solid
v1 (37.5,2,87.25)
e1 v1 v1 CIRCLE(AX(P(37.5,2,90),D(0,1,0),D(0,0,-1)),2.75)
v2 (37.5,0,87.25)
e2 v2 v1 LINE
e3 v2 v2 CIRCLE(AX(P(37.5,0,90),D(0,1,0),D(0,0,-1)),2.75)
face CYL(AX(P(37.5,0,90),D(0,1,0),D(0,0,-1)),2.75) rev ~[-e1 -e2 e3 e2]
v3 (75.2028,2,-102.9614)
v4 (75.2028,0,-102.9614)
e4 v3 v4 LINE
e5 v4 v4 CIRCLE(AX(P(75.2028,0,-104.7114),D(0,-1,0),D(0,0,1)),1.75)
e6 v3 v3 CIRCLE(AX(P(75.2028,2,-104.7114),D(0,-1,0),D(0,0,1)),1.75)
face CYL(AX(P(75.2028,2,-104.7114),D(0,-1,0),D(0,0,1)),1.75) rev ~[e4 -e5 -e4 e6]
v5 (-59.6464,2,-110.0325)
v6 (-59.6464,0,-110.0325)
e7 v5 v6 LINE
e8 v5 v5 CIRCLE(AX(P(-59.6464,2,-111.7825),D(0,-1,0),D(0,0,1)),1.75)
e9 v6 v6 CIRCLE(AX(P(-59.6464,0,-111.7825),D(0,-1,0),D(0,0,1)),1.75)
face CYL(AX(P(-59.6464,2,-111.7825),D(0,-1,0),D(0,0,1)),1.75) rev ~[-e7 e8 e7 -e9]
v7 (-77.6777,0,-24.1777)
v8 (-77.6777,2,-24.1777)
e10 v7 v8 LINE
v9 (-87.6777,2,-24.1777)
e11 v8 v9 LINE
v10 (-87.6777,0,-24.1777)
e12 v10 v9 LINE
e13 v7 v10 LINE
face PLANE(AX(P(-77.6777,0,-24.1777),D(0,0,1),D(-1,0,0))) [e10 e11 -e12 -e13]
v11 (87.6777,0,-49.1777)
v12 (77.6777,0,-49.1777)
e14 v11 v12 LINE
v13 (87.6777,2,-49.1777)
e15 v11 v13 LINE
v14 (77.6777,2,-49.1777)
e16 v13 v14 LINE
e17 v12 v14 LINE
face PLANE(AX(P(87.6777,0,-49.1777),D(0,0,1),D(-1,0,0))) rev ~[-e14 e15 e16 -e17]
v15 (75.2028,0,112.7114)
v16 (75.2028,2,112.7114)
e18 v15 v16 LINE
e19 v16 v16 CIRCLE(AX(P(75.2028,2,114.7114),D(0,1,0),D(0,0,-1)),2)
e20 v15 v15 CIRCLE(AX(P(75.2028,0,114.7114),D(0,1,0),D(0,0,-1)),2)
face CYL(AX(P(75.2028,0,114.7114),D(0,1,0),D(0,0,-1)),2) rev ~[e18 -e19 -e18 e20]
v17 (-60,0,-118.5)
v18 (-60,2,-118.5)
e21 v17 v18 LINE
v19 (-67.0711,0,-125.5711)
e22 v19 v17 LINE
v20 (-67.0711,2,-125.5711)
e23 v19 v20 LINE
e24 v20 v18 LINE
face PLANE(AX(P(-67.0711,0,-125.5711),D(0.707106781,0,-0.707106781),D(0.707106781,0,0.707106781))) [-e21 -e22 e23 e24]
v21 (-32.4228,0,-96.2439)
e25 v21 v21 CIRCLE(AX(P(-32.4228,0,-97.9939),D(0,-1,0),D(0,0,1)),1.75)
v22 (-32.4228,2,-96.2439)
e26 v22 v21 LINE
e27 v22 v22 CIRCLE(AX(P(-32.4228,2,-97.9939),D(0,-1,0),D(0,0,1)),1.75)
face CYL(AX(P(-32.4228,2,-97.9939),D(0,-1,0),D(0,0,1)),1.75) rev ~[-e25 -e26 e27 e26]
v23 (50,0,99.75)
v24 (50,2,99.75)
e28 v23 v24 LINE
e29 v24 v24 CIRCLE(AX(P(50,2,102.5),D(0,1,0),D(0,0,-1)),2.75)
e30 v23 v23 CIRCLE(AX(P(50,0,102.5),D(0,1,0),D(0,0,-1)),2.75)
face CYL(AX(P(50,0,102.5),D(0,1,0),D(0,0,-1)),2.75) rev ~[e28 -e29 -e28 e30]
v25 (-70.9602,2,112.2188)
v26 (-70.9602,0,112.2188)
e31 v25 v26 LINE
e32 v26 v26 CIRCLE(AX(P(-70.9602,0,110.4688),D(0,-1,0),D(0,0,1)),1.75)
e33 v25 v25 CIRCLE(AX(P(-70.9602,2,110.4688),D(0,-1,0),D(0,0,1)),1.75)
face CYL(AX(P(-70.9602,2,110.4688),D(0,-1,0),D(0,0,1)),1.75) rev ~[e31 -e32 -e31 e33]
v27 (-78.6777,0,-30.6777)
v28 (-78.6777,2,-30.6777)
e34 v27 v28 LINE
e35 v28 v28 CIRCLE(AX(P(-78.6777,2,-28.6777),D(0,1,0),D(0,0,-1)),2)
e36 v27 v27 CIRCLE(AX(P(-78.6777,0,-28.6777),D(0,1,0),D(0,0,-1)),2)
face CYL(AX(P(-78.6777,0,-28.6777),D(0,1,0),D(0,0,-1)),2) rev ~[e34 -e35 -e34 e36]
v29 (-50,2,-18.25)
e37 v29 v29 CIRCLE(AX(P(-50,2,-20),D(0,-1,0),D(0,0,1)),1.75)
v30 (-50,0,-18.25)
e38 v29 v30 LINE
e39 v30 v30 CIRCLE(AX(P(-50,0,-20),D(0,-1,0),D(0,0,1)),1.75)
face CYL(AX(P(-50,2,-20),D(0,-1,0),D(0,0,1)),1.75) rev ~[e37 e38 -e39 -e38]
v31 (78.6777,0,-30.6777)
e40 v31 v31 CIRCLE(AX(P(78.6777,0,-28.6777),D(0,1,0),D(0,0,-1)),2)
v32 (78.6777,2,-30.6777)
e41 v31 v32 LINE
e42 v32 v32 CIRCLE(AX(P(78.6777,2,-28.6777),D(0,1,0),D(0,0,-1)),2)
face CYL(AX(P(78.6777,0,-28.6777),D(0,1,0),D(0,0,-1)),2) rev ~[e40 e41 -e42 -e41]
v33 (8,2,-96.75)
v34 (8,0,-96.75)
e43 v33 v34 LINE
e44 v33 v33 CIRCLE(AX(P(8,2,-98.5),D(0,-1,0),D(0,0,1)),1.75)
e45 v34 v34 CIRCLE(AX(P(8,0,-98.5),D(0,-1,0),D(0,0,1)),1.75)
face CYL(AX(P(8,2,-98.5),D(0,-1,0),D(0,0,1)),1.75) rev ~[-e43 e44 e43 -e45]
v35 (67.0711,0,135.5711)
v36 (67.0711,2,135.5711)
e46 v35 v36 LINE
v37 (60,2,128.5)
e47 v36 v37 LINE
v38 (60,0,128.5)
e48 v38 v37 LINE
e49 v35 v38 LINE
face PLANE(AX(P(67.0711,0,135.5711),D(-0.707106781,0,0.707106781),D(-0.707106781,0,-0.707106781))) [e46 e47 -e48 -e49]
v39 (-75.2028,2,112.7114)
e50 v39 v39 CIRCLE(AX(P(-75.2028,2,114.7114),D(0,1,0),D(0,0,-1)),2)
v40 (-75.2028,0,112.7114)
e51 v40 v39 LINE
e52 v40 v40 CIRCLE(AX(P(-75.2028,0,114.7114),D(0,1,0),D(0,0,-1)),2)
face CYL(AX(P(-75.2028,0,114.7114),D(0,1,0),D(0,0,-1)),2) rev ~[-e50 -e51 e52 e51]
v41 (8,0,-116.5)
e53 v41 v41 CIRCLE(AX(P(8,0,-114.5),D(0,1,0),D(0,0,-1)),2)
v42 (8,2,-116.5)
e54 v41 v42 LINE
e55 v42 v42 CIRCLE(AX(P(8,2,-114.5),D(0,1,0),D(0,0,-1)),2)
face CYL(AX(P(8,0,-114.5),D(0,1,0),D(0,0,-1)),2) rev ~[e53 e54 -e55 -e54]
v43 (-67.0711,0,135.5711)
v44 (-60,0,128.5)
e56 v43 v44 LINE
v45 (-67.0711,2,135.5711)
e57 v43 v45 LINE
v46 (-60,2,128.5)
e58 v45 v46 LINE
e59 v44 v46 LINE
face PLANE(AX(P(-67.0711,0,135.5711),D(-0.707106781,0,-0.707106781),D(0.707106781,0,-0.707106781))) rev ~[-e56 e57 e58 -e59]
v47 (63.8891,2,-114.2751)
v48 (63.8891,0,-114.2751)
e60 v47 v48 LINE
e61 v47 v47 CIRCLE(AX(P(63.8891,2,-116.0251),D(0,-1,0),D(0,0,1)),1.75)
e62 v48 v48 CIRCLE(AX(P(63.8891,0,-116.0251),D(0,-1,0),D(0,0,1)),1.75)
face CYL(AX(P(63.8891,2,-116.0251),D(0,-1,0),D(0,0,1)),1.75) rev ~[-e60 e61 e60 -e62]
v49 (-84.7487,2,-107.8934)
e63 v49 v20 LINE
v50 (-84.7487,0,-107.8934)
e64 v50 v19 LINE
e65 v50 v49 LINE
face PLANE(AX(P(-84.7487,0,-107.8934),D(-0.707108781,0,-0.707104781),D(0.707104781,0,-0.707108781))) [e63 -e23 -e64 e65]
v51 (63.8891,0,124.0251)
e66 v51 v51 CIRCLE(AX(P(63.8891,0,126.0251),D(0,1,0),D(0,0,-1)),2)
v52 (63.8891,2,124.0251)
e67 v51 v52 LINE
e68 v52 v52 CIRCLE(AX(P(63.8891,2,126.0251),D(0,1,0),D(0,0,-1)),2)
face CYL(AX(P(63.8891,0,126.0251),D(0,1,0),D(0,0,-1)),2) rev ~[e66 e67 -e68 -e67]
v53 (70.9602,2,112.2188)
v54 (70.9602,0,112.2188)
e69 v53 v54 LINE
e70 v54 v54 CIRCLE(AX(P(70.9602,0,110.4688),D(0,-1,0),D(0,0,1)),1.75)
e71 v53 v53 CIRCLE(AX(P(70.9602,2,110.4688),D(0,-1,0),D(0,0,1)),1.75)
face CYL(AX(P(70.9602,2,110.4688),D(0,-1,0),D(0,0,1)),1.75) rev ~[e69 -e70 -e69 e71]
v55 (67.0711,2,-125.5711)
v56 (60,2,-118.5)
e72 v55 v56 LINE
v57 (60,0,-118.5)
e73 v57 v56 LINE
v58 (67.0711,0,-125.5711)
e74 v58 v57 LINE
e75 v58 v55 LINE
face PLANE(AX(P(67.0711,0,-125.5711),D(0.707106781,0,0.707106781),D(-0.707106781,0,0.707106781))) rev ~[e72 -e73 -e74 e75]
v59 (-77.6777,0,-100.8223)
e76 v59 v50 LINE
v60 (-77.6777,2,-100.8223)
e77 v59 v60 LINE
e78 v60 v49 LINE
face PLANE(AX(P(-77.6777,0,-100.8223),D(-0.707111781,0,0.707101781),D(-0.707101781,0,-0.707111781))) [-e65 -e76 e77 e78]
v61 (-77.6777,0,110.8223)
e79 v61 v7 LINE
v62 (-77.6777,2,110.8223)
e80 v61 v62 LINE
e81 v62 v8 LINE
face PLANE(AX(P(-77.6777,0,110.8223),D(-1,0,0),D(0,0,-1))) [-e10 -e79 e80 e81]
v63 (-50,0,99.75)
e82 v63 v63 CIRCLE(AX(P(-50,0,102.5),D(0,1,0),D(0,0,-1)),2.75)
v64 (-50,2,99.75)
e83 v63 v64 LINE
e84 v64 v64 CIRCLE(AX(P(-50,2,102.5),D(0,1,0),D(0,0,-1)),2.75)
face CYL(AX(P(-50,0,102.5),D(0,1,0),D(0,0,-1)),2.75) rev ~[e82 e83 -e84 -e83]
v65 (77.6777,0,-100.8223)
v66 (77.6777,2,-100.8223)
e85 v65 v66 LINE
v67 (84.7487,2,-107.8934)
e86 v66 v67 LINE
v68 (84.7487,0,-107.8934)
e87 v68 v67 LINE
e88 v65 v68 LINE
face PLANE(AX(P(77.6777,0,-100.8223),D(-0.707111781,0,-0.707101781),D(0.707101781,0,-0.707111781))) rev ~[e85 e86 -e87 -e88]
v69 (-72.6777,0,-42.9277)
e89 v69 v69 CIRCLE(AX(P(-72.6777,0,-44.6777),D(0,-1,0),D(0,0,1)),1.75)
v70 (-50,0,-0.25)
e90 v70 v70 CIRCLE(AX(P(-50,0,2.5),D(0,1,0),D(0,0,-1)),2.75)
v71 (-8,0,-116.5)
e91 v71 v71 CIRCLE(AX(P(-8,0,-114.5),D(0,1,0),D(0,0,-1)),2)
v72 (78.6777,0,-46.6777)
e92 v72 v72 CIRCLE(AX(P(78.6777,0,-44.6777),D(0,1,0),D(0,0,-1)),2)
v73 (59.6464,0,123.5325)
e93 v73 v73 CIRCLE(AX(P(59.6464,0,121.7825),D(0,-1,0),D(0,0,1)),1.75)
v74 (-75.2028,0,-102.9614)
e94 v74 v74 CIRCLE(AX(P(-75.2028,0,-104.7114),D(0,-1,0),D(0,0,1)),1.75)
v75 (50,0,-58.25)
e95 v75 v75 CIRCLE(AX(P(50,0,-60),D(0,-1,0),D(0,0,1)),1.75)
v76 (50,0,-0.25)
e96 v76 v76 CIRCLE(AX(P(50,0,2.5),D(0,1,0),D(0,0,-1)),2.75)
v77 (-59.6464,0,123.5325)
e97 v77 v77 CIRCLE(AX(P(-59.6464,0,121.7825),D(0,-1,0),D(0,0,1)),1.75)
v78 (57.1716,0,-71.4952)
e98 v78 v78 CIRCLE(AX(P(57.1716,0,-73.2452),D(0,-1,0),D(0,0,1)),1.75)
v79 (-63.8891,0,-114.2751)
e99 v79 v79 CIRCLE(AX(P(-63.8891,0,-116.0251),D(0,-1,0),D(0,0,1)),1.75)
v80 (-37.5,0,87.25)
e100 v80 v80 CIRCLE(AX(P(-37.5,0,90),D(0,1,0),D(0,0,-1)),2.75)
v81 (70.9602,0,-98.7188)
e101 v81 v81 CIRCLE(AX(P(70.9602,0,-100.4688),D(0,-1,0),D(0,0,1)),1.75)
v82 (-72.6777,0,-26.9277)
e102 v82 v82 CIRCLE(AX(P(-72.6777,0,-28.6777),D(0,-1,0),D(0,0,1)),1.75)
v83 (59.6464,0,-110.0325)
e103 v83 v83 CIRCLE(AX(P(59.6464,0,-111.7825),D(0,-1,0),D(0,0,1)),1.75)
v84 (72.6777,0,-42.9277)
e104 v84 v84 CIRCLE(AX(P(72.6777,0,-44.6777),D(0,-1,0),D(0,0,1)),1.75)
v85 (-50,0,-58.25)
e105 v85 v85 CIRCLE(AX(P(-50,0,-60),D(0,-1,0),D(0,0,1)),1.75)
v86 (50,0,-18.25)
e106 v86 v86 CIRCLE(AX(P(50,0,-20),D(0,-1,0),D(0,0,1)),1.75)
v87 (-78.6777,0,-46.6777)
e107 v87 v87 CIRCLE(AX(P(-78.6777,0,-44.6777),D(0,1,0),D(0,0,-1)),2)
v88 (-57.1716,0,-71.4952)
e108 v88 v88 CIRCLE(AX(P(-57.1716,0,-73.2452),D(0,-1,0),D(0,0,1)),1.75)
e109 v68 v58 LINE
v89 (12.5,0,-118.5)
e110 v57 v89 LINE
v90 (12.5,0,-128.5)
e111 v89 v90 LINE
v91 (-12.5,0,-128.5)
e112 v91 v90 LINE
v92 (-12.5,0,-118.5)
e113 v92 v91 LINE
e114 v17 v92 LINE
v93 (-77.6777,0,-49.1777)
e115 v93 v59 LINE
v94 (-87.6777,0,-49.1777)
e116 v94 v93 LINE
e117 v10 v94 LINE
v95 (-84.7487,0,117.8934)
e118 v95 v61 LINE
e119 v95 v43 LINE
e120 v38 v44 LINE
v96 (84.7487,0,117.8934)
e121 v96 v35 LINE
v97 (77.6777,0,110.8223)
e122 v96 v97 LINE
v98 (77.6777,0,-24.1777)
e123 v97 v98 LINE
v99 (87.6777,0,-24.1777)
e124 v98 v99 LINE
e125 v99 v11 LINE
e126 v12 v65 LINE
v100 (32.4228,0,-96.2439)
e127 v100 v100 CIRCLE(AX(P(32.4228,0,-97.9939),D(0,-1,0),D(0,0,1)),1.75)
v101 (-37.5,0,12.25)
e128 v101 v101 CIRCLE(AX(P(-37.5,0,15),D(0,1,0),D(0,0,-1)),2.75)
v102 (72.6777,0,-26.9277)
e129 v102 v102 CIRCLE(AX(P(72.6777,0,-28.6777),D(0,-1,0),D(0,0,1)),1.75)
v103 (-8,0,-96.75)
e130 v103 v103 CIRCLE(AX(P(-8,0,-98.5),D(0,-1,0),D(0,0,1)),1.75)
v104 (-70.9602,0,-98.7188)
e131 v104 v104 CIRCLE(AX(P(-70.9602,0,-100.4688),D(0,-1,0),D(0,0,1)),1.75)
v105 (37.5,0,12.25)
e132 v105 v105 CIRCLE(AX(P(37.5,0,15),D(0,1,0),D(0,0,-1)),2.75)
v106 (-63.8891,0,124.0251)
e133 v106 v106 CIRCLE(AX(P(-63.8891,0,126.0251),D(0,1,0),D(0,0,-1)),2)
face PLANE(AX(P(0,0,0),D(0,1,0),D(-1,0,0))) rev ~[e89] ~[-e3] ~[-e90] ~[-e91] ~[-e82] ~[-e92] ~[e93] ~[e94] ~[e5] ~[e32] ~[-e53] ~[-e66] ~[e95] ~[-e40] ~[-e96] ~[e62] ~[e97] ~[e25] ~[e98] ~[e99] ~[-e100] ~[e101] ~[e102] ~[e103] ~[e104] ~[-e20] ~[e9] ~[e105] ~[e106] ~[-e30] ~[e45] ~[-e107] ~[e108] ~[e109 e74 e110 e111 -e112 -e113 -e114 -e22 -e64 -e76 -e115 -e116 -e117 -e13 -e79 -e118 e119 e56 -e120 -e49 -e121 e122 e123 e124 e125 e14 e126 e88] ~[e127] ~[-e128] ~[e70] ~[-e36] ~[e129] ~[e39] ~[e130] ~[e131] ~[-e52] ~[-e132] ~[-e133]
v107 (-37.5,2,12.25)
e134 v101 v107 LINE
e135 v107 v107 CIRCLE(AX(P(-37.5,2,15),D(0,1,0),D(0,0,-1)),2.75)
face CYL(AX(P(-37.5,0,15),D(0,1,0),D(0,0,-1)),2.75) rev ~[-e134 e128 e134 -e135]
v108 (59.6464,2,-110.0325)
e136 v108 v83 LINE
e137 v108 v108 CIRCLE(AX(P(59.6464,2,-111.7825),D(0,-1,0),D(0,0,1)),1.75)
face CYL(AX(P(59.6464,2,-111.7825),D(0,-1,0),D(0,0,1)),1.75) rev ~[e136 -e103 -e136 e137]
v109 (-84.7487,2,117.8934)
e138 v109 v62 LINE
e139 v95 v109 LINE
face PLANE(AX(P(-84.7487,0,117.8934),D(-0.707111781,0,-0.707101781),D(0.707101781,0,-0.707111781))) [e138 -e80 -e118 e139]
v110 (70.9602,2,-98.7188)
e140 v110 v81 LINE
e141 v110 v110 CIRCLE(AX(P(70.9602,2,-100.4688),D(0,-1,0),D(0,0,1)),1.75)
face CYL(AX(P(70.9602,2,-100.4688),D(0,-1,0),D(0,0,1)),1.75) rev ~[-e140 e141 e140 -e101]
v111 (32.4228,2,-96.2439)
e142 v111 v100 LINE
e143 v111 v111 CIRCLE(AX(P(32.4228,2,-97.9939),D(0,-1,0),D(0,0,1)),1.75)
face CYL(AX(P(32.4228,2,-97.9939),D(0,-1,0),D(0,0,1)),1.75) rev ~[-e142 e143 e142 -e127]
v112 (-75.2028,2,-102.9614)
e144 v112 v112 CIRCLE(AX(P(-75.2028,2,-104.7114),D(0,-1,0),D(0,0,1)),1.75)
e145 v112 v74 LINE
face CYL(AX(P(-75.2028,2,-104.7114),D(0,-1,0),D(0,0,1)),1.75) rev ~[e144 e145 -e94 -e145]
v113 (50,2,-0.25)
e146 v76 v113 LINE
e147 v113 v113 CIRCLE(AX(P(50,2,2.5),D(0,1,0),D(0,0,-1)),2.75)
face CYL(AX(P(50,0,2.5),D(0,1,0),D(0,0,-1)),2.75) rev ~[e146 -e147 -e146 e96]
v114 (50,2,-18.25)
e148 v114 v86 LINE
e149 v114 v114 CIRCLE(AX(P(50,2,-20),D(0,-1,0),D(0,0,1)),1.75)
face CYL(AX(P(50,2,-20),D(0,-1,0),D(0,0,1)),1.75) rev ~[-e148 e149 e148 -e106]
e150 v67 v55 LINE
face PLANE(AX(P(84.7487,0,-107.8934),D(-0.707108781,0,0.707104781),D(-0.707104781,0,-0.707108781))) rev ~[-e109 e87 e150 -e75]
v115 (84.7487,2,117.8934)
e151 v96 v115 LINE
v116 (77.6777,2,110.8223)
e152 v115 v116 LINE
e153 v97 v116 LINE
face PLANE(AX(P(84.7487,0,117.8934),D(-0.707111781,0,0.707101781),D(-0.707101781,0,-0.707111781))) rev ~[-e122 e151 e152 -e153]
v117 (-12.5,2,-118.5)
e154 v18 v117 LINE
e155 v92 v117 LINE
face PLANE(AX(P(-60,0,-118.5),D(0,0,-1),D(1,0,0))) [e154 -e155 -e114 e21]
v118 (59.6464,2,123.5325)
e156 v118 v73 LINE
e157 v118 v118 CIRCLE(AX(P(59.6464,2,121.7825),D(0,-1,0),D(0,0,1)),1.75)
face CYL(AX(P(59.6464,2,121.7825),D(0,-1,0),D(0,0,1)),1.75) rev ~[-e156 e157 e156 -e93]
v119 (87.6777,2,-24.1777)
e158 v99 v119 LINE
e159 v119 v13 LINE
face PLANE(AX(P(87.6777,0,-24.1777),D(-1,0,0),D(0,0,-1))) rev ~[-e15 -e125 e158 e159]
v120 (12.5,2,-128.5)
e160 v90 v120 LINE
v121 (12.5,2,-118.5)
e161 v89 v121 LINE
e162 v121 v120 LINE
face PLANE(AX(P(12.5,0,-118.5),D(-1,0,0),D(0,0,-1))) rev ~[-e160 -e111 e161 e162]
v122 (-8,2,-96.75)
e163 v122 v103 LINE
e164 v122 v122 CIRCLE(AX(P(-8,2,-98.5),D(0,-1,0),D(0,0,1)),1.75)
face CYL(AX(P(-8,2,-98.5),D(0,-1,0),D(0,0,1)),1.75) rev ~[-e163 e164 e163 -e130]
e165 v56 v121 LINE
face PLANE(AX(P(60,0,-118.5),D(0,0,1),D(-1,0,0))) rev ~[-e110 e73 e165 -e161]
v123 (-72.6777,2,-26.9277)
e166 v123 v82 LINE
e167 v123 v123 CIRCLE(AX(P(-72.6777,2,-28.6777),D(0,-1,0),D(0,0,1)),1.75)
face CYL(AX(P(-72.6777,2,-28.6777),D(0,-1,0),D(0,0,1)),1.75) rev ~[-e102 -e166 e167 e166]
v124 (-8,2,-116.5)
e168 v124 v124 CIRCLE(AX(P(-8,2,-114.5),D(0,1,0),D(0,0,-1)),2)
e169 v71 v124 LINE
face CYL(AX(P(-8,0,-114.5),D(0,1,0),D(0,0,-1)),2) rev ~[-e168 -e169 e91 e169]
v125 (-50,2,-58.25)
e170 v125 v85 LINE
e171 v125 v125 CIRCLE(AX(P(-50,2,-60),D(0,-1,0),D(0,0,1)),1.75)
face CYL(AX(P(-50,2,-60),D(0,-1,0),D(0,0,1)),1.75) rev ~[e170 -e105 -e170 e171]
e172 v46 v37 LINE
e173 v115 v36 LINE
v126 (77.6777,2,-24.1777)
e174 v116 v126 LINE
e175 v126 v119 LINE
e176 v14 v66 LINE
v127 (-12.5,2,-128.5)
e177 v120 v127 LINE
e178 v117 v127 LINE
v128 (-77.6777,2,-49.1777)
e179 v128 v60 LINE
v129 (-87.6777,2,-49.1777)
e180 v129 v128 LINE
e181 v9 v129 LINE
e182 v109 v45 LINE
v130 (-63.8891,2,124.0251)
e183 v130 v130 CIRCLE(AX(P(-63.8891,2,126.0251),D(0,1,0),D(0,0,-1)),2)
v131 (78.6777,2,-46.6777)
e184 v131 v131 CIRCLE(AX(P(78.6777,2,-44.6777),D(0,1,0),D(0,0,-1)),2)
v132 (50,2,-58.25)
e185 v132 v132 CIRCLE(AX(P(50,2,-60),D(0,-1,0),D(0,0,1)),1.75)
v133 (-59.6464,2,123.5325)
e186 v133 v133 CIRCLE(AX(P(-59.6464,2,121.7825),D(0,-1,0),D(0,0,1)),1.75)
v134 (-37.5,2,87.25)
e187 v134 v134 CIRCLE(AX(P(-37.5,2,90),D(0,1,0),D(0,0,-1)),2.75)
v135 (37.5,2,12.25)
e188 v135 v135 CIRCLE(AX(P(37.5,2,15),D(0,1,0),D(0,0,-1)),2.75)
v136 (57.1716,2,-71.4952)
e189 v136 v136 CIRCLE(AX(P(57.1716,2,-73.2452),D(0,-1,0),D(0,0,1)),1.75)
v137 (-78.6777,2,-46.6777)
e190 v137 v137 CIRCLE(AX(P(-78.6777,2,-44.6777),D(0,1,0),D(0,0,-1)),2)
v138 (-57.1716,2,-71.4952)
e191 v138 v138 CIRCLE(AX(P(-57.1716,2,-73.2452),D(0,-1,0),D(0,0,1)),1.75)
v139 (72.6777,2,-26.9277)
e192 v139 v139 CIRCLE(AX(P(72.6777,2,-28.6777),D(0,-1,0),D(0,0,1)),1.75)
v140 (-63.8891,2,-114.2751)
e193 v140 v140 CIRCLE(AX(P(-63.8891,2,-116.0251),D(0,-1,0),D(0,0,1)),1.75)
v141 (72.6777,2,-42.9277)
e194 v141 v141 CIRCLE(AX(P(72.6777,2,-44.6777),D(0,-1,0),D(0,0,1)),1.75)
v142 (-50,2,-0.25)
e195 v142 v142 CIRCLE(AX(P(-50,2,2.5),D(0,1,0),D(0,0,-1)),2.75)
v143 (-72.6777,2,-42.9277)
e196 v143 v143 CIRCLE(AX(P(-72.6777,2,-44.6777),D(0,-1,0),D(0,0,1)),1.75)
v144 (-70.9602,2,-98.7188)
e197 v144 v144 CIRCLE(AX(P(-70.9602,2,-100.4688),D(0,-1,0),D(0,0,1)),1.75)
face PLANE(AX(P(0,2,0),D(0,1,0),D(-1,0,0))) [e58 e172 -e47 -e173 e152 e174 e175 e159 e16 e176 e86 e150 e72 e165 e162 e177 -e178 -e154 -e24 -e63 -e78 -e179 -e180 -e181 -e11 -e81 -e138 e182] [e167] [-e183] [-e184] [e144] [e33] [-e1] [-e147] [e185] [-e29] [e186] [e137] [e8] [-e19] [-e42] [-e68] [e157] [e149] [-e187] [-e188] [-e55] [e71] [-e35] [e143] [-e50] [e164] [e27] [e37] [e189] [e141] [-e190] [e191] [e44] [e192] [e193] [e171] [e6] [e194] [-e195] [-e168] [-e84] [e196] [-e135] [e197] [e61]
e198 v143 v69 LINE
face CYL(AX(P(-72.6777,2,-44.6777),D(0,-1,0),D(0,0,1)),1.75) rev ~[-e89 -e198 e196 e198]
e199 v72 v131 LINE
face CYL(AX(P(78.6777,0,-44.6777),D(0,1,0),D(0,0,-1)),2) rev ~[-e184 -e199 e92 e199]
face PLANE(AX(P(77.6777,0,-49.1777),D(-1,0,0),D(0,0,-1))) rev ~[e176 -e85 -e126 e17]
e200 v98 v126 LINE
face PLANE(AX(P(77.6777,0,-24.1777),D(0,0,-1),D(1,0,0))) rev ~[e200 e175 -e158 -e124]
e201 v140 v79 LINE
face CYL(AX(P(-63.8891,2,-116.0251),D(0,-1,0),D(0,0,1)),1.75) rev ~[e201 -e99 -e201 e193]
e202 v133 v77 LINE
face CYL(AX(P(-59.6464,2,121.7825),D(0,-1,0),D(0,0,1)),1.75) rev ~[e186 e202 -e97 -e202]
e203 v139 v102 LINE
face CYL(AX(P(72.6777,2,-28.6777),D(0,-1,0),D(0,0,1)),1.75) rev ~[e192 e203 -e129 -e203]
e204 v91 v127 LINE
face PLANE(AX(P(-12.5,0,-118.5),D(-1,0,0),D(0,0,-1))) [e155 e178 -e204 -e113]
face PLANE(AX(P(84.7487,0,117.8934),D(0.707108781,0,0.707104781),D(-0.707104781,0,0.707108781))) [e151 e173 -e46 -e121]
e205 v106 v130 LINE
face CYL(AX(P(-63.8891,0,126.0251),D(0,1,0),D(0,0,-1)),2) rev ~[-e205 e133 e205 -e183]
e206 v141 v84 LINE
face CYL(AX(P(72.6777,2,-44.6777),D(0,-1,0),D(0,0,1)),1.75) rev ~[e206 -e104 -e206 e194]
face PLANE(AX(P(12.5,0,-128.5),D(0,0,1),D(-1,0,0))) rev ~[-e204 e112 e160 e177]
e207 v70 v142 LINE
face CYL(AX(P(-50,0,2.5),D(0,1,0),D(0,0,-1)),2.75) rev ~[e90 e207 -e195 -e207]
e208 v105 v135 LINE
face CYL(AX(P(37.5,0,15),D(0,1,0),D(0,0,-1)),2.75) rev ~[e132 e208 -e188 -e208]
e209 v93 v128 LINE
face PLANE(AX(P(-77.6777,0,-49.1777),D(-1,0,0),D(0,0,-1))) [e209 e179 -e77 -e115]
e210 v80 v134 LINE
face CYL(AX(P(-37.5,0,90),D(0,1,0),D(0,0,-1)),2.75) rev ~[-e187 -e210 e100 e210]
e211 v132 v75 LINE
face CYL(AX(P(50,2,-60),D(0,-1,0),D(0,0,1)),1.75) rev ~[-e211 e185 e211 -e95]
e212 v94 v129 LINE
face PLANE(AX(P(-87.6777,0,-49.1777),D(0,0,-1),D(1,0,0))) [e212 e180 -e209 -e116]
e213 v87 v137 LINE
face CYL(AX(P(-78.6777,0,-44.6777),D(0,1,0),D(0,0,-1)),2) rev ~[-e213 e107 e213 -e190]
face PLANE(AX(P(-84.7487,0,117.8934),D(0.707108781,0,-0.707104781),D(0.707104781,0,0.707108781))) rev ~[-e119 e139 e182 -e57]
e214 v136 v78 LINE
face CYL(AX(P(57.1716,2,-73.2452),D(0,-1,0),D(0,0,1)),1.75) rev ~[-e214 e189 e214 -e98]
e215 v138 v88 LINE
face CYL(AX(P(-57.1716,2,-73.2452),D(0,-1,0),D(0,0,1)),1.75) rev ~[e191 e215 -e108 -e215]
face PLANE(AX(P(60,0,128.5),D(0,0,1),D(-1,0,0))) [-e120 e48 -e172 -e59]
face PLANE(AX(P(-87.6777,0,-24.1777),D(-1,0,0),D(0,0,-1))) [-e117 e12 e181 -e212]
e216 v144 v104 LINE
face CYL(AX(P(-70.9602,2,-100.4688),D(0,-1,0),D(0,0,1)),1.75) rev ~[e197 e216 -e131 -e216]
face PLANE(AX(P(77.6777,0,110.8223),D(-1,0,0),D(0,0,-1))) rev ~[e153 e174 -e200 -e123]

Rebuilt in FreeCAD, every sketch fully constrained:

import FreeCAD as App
import Part
import Sketcher
Q = App.Units.Quantity


def add_polygon(sketch, points):
    """Adds a closed chain of lines whose ends are joined by coincident constraints."""
    first, n = sketch.GeometryCount, len(points)
    for a, b in zip(points, points[1:] + points[:1]):
        sketch.addGeometry(Part.LineSegment(App.Vector(*a, 0), App.Vector(*b, 0)), False)
    for i in range(n):
        sketch.addConstraint(Sketcher.Constraint("Coincident", first + i, 2, first + (i + 1) % n, 1))

doc = App.newDocument("Part")
params = doc.addObject("Spreadsheet::Sheet", "Params")
for row, (alias, value) in enumerate([
    ("sketch1_width", "10 mm"),
    ("sketch1_width2", "25 mm"),
    ("sketch1_height", "135 mm"),
    ("sketch1_length", "25 mm"),
    ("sketch1_length2", "10 mm"),
    ("pad1_length", "2 mm"),
    ("sketch2_diameter", "3.5 mm"),
    ("hole_diameter", "3.5 mm"),
    ("sketch3_diameter", "5.5 mm"),
    ("hole2_diameter", "5.5 mm"),
    ("sketch4_diameter", "3.5 mm"),
    ("hole3_diameter", "3.5 mm"),
    ("sketch5_diameter", "3.5 mm"),
    ("hole4_diameter", "3.5 mm"),
    ("sketch6_diameter", "4 mm"),
    ("hole5_diameter", "4 mm"),
], start=1):
    params.set(f"A{row}", alias)
    params.set(f"B{row}", "=" + value)
    params.setAlias(f"B{row}", alias)

body = doc.addObject("PartDesign::Body", "Body")

# Sketch on XZ plane
sketch1 = body.newObject("Sketcher::SketchObject", "Sketch")
sketch1.AttachmentSupport = (doc.getObject("XZ_Plane"), [""])
sketch1.MapMode = "FlatFace"
add_polygon(sketch1, [(67, 136), (85, 118), (78, 111), (78, -24), (88, -24), (88, -49), (78, -49), (78, -101), (85, -108), (67, -126), (60, -118), (12, -118), (12, -128), (-12, -128), (-12, -118), (-60, -118), (-67, -126), (-85, -108), (-78, -101), (-78, -49), (-88, -49), (-88, -24), (-78, -24), (-78, 111), (-85, 118), (-67, 136), (-60, 128), (60, 128)])  # lines 0-27
sketch1.addConstraint([
    Sketcher.Constraint("Vertical", 2),
    Sketcher.Constraint("Horizontal", 3),
    Sketcher.Constraint("Vertical", 4),
    Sketcher.Constraint("Horizontal", 5),
    Sketcher.Constraint("Vertical", 6),
    Sketcher.Constraint("Horizontal", 10),
    Sketcher.Constraint("Vertical", 11),
    Sketcher.Constraint("Horizontal", 12),
    Sketcher.Constraint("Vertical", 13),
    Sketcher.Constraint("Horizontal", 14),
    Sketcher.Constraint("Vertical", 18),
    Sketcher.Constraint("Horizontal", 19),
    Sketcher.Constraint("Vertical", 20),
    Sketcher.Constraint("Horizontal", 21),
    Sketcher.Constraint("Vertical", 22),
    Sketcher.Constraint("Horizontal", 26),
    Sketcher.Constraint("Symmetric", 10, 2, 13, 2, -2),
    Sketcher.Constraint("Symmetric", 8, 2, 15, 2, -2),
    Sketcher.Constraint("Symmetric", 7, 2, 16, 2, -2),
    Sketcher.Constraint("Symmetric", 6, 2, 17, 2, -2),
    Sketcher.Constraint("Symmetric", 4, 2, 19, 2, -2),
    Sketcher.Constraint("Symmetric", 2, 2, 21, 2, -2),
    Sketcher.Constraint("Symmetric", 0, 2, 23, 2, -2),
    Sketcher.Constraint("Symmetric", 24, 2, 27, 2, -2),
    Sketcher.Constraint("Perpendicular", 0, 1),
    Sketcher.Constraint("Perpendicular", 1, 7),
    Sketcher.Constraint("Perpendicular", 7, 8),
    Sketcher.Constraint("Perpendicular", 8, 9),
    Sketcher.Constraint("Perpendicular", 9, 15),
    Sketcher.Constraint("Perpendicular", 15, 16),
    Sketcher.Constraint("Perpendicular", 17, 23),
    Sketcher.Constraint("Perpendicular", 24, 25),
    Sketcher.Constraint("Perpendicular", 25, 27),
    Sketcher.Constraint("Vertical", 2, 2, 5, 2),
    Sketcher.Constraint("Vertical", 0, 2, 7, 2),
    Sketcher.Constraint("Vertical", 15, 2, 24, 2),
    Sketcher.Constraint("Vertical", 14, 2, 25, 2),
    Sketcher.Constraint("Equal", 12, 4),
    Sketcher.Constraint("Equal", 21, 11),
    Sketcher.Constraint("Equal", 7, 9),
    Sketcher.Constraint("DistanceX", 3, 1, 3, 2, Q("10 mm")),
    Sketcher.Constraint("DistanceX", 12, 2, 12, 1, Q("25 mm")),
    Sketcher.Constraint("DistanceY", 2, 2, 2, 1, Q("135 mm")),
    Sketcher.Constraint("Distance", 0, Q("25 mm")),
    Sketcher.Constraint("Distance", 1, Q("10 mm")),
    Sketcher.Constraint("DistanceX", -1, 1, 9, 2, Q("60 mm")),
    Sketcher.Constraint("DistanceY", 11, 2, -1, 1, Q("128.5 mm")),
    Sketcher.Constraint("DistanceY", -1, 1, 25, 2, Q("128.5 mm")),
])
sketch1.setExpression("Constraints[68]", "Params.sketch1_width")
sketch1.setExpression("Constraints[69]", "Params.sketch1_width2")
sketch1.setExpression("Constraints[70]", "Params.sketch1_height")
sketch1.setExpression("Constraints[71]", "Params.sketch1_length")
sketch1.setExpression("Constraints[72]", "Params.sketch1_length2")
pad1 = body.newObject("PartDesign::Pad", "Pad")
pad1.Profile = sketch1
pad1.setExpression("Length", "Params.pad1_length")
pad1.Reversed = True

# Sketch on XZ plane
sketch2 = body.newObject("Sketcher::SketchObject", "Sketch001")
sketch2.AttachmentSupport = (doc.getObject("XZ_Plane"), [""])
sketch2.MapMode = "FlatFace"
sketch2.AttachmentOffset = App.Placement(App.Vector(0, 0, -2), App.Rotation())
sketch2.addGeometry([
    Part.Circle(App.Vector(-59.6, -111.8, 0), App.Vector(0, 0, 1), 1.8),  # 0
    Part.Circle(App.Vector(-71, -100.5, 0), App.Vector(0, 0, 1), 1.8),  # 1
    Part.Circle(App.Vector(-72.7, -44.7, 0), App.Vector(0, 0, 1), 1.8),  # 2
    Part.Circle(App.Vector(-72.7, -28.7, 0), App.Vector(0, 0, 1), 1.8),  # 3
    Part.Circle(App.Vector(-8, -98.5, 0), App.Vector(0, 0, 1), 1.8),  # 4
    Part.Circle(App.Vector(8, -98.5, 0), App.Vector(0, 0, 1), 1.8),  # 5
    Part.Circle(App.Vector(59.6, -111.8, 0), App.Vector(0, 0, 1), 1.8),  # 6
    Part.Circle(App.Vector(71, -100.5, 0), App.Vector(0, 0, 1), 1.8),  # 7
    Part.Circle(App.Vector(-71, 110.5, 0), App.Vector(0, 0, 1), 1.8),  # 8
    Part.Circle(App.Vector(-59.6, 121.8, 0), App.Vector(0, 0, 1), 1.8),  # 9
    Part.Circle(App.Vector(59.6, 121.8, 0), App.Vector(0, 0, 1), 1.8),  # 10
    Part.Circle(App.Vector(71, 110.5, 0), App.Vector(0, 0, 1), 1.8),  # 11
    Part.Circle(App.Vector(72.7, -28.7, 0), App.Vector(0, 0, 1), 1.8),  # 12
    Part.Circle(App.Vector(72.7, -44.7, 0), App.Vector(0, 0, 1), 1.8),  # 13
], False)
sketch2.addConstraint([
    Sketcher.Constraint("Equal", 0, 1),
    Sketcher.Constraint("Equal", 1, 2),
    Sketcher.Constraint("Equal", 2, 3),
    Sketcher.Constraint("Equal", 3, 4),
    Sketcher.Constraint("Equal", 4, 5),
    Sketcher.Constraint("Equal", 5, 6),
    Sketcher.Constraint("Equal", 6, 7),
    Sketcher.Constraint("Equal", 7, 8),
    Sketcher.Constraint("Equal", 8, 9),
    Sketcher.Constraint("Equal", 9, 10),
    Sketcher.Constraint("Equal", 10, 11),
    Sketcher.Constraint("Equal", 11, 12),
    Sketcher.Constraint("Equal", 12, 13),
    Sketcher.Constraint("Symmetric", 4, 3, 5, 3, -2),
    Sketcher.Constraint("Symmetric", 0, 3, 6, 3, -2),
    Sketcher.Constraint("Symmetric", 1, 3, 7, 3, -2),
    Sketcher.Constraint("Symmetric", 9, 3, 10, 3, -2),
    Sketcher.Constraint("Symmetric", 8, 3, 11, 3, -2),
    Sketcher.Constraint("Symmetric", 3, 3, 12, 3, -2),
    Sketcher.Constraint("Symmetric", 2, 3, 13, 3, -2),
    Sketcher.Constraint("Vertical", 2, 3, 3, 3),
    Sketcher.Constraint("Vertical", 1, 3, 8, 3),
    Sketcher.Constraint("Vertical", 0, 3, 9, 3),
    Sketcher.Constraint("Diameter", 0, Q("3.5 mm")),
    Sketcher.Constraint("DistanceX", 4, 3, -1, 1, Q("8 mm")),
    Sketcher.Constraint("DistanceY", 2, 3, 3, 3, Q("16 mm")),
    Sketcher.Constraint("DistanceY", 4, 3, -1, 1, Q("98.5 mm")),
    Sketcher.Constraint("DistanceY", 1, 3, 2, 3, Q("55.791 mm")),
    Sketcher.Constraint("DistanceX", 2, 3, 6, 3, Q("132.324 mm")),
    Sketcher.Constraint("DistanceX", 3, 3, 11, 3, Q("143.638 mm")),
    Sketcher.Constraint("DistanceX", 0, 3, -1, 1, Q("59.6464 mm")),
    Sketcher.Constraint("DistanceY", 0, 3, -1, 1, Q("111.7825 mm")),
    Sketcher.Constraint("DistanceY", 1, 3, -1, 1, Q("100.4688 mm")),
    Sketcher.Constraint("DistanceY", -1, 1, 8, 3, Q("110.4688 mm")),
    Sketcher.Constraint("DistanceY", -1, 1, 9, 3, Q("121.7825 mm")),
])
sketch2.setExpression("Constraints[23]", "Params.sketch2_diameter")
doc.recompute()
hole = body.newObject("PartDesign::Hole", "Hole")
hole.Profile = sketch2
hole.ThreadType = "None"
hole.setExpression("Diameter", "Params.hole_diameter")
hole.DepthType = "ThroughAll"
hole.Reversed = True

# Sketch on XZ plane
sketch3 = body.newObject("Sketcher::SketchObject", "Sketch002")
sketch3.AttachmentSupport = (doc.getObject("XZ_Plane"), [""])
sketch3.MapMode = "FlatFace"
sketch3.addGeometry([
    Part.Circle(App.Vector(-37.5, 90, 0), App.Vector(0, 0, 1), 2.8),  # 0
    Part.Circle(App.Vector(-50, 102.5, 0), App.Vector(0, 0, 1), 2.8),  # 1
    Part.Circle(App.Vector(-37.5, 15, 0), App.Vector(0, 0, 1), 2.8),  # 2
    Part.Circle(App.Vector(-50, 2.5, 0), App.Vector(0, 0, 1), 2.8),  # 3
    Part.Circle(App.Vector(37.5, 15, 0), App.Vector(0, 0, 1), 2.8),  # 4
    Part.Circle(App.Vector(50, 2.5, 0), App.Vector(0, 0, 1), 2.8),  # 5
    Part.Circle(App.Vector(37.5, 90, 0), App.Vector(0, 0, 1), 2.8),  # 6
    Part.Circle(App.Vector(50, 102.5, 0), App.Vector(0, 0, 1), 2.8),  # 7
], False)
sketch3.addConstraint([
    Sketcher.Constraint("Equal", 0, 1),
    Sketcher.Constraint("Equal", 1, 2),
    Sketcher.Constraint("Equal", 2, 3),
    Sketcher.Constraint("Equal", 3, 4),
    Sketcher.Constraint("Equal", 4, 5),
    Sketcher.Constraint("Equal", 5, 6),
    Sketcher.Constraint("Equal", 6, 7),
    Sketcher.Constraint("Symmetric", 2, 3, 4, 3, -2),
    Sketcher.Constraint("Symmetric", 3, 3, 5, 3, -2),
    Sketcher.Constraint("Symmetric", 0, 3, 6, 3, -2),
    Sketcher.Constraint("Symmetric", 1, 3, 7, 3, -2),
    Sketcher.Constraint("Vertical", 0, 3, 2, 3),
    Sketcher.Constraint("Vertical", 1, 3, 3, 3),
    Sketcher.Constraint("Diameter", 0, Q("5.5 mm")),
    Sketcher.Constraint("DistanceY", -1, 1, 0, 3, Q("90 mm")),
    Sketcher.Constraint("DistanceX", 1, 3, -1, 1, Q("50 mm")),
    Sketcher.Constraint("DistanceY", -1, 1, 2, 3, Q("15 mm")),
    Sketcher.Constraint("DistanceY", 3, 3, 1, 3, Q("100 mm")),
    Sketcher.Constraint("DistanceX", 2, 3, 4, 3, Q("75 mm")),
    Sketcher.Constraint("DistanceY", -1, 1, 1, 3, Q("102.5 mm")),
])
sketch3.setExpression("Constraints[13]", "Params.sketch3_diameter")
doc.recompute()
hole2 = body.newObject("PartDesign::Hole", "Hole001")
hole2.Profile = sketch3
hole2.ThreadType = "None"
hole2.setExpression("Diameter", "Params.hole2_diameter")
hole2.DepthType = "ThroughAll"

# Sketch on XZ plane
sketch4 = body.newObject("Sketcher::SketchObject", "Sketch003")
sketch4.AttachmentSupport = (doc.getObject("XZ_Plane"), [""])
sketch4.MapMode = "FlatFace"
sketch4.AttachmentOffset = App.Placement(App.Vector(0, 0, -2), App.Rotation())
sketch4.addGeometry([
    Part.Circle(App.Vector(-75.2, -104.7, 0), App.Vector(0, 0, 1), 1.8),  # 0
    Part.Circle(App.Vector(-63.9, -116, 0), App.Vector(0, 0, 1), 1.8),  # 1
    Part.Circle(App.Vector(-57.2, -73.2, 0), App.Vector(0, 0, 1), 1.8),  # 2
    Part.Circle(App.Vector(-32.4, -98, 0), App.Vector(0, 0, 1), 1.8),  # 3
    Part.Circle(App.Vector(32.4, -98, 0), App.Vector(0, 0, 1), 1.8),  # 4
    Part.Circle(App.Vector(57.2, -73.2, 0), App.Vector(0, 0, 1), 1.8),  # 5
    Part.Circle(App.Vector(75.2, -104.7, 0), App.Vector(0, 0, 1), 1.8),  # 6
    Part.Circle(App.Vector(63.9, -116, 0), App.Vector(0, 0, 1), 1.8),  # 7
], False)
sketch4.addConstraint([
    Sketcher.Constraint("Equal", 0, 1),
    Sketcher.Constraint("Equal", 1, 2),
    Sketcher.Constraint("Equal", 2, 3),
    Sketcher.Constraint("Equal", 3, 4),
    Sketcher.Constraint("Equal", 4, 5),
    Sketcher.Constraint("Equal", 5, 6),
    Sketcher.Constraint("Equal", 6, 7),
    Sketcher.Constraint("Symmetric", 3, 3, 4, 3, -2),
    Sketcher.Constraint("Symmetric", 2, 3, 5, 3, -2),
    Sketcher.Constraint("Symmetric", 0, 3, 6, 3, -2),
    Sketcher.Constraint("Symmetric", 1, 3, 7, 3, -2),
    Sketcher.Constraint("Diameter", 0, Q("3.5 mm")),
    Sketcher.Constraint("DistanceY", 1, 3, 2, 3, Q("42.78 mm")),
    Sketcher.Constraint("DistanceX", 0, 3, 3, 3, Q("42.78 mm")),
    Sketcher.Constraint("DistanceX", 1, 3, -1, 1, Q("63.889 mm")),
    Sketcher.Constraint("DistanceY", 1, 3, -1, 1, Q("116.025 mm")),
    Sketcher.Constraint("DistanceY", 3, 3, -1, 1, Q("97.994 mm")),
    Sketcher.Constraint("DistanceX", 1, 3, 4, 3, Q("96.312 mm")),
    Sketcher.Constraint("DistanceY", 0, 3, -1, 1, Q("104.7114 mm")),
    Sketcher.Constraint("DistanceX", 2, 3, -1, 1, Q("57.1716 mm")),
])
sketch4.setExpression("Constraints[11]", "Params.sketch4_diameter")
doc.recompute()
hole3 = body.newObject("PartDesign::Hole", "Hole002")
hole3.Profile = sketch4
hole3.ThreadType = "None"
hole3.setExpression("Diameter", "Params.hole3_diameter")
hole3.DepthType = "ThroughAll"
hole3.Reversed = True

# Sketch on XZ plane
sketch5 = body.newObject("Sketcher::SketchObject", "Sketch004")
sketch5.AttachmentSupport = (doc.getObject("XZ_Plane"), [""])
sketch5.MapMode = "FlatFace"
sketch5.AttachmentOffset = App.Placement(App.Vector(0, 0, -2), App.Rotation())
sketch5.addGeometry([
    Part.Circle(App.Vector(-50, -60, 0), App.Vector(0, 0, 1), 1.8),
    Part.Circle(App.Vector(-50, -20, 0), App.Vector(0, 0, 1), 1.8),
    Part.Circle(App.Vector(50, -60, 0), App.Vector(0, 0, 1), 1.8),
    Part.Circle(App.Vector(50, -20, 0), App.Vector(0, 0, 1), 1.8),
], False)
sketch5.addConstraint([
    Sketcher.Constraint("Equal", 0, 1),
    Sketcher.Constraint("Equal", 1, 2),
    Sketcher.Constraint("Equal", 2, 3),
    Sketcher.Constraint("Symmetric", 0, 3, 2, 3, -2),
    Sketcher.Constraint("Symmetric", 1, 3, 3, 3, -2),
    Sketcher.Constraint("Vertical", 0, 3, 1, 3),
    Sketcher.Constraint("Diameter", 0, Q("3.5 mm")),
    Sketcher.Constraint("DistanceX", 0, 3, -1, 1, Q("50 mm")),
    Sketcher.Constraint("DistanceY", 0, 3, -1, 1, Q("60 mm")),
    Sketcher.Constraint("DistanceY", 1, 3, -1, 1, Q("20 mm")),
])
sketch5.setExpression("Constraints[6]", "Params.sketch5_diameter")
doc.recompute()
hole4 = body.newObject("PartDesign::Hole", "Hole003")
hole4.Profile = sketch5
hole4.ThreadType = "None"
hole4.setExpression("Diameter", "Params.hole4_diameter")
hole4.DepthType = "ThroughAll"
hole4.Reversed = True

# Sketch on XZ plane
sketch6 = body.newObject("Sketcher::SketchObject", "Sketch005")
sketch6.AttachmentSupport = (doc.getObject("XZ_Plane"), [""])
sketch6.MapMode = "FlatFace"
sketch6.addGeometry([
    Part.Circle(App.Vector(78.7, -28.7, 0), App.Vector(0, 0, 1), 2),  # 0
    Part.Circle(App.Vector(78.7, -44.7, 0), App.Vector(0, 0, 1), 2),  # 1
    Part.Circle(App.Vector(8, -114.5, 0), App.Vector(0, 0, 1), 2),  # 2
    Part.Circle(App.Vector(-8, -114.5, 0), App.Vector(0, 0, 1), 2),  # 3
    Part.Circle(App.Vector(-78.7, -44.7, 0), App.Vector(0, 0, 1), 2),  # 4
    Part.Circle(App.Vector(-78.7, -28.7, 0), App.Vector(0, 0, 1), 2),  # 5
    Part.Circle(App.Vector(-75.2, 114.7, 0), App.Vector(0, 0, 1), 2),  # 6
    Part.Circle(App.Vector(-63.9, 126, 0), App.Vector(0, 0, 1), 2),  # 7
    Part.Circle(App.Vector(63.9, 126, 0), App.Vector(0, 0, 1), 2),  # 8
    Part.Circle(App.Vector(75.2, 114.7, 0), App.Vector(0, 0, 1), 2),  # 9
], False)
sketch6.addConstraint([
    Sketcher.Constraint("Equal", 0, 1),
    Sketcher.Constraint("Equal", 1, 2),
    Sketcher.Constraint("Equal", 2, 3),
    Sketcher.Constraint("Equal", 3, 4),
    Sketcher.Constraint("Equal", 4, 5),
    Sketcher.Constraint("Equal", 5, 6),
    Sketcher.Constraint("Equal", 6, 7),
    Sketcher.Constraint("Equal", 7, 8),
    Sketcher.Constraint("Equal", 8, 9),
    Sketcher.Constraint("Symmetric", 2, 3, 3, 3, -2),
    Sketcher.Constraint("Symmetric", 1, 3, 4, 3, -2),
    Sketcher.Constraint("Symmetric", 0, 3, 5, 3, -2),
    Sketcher.Constraint("Symmetric", 7, 3, 8, 3, -2),
    Sketcher.Constraint("Symmetric", 6, 3, 9, 3, -2),
    Sketcher.Constraint("Vertical", 0, 3, 1, 3),
    Sketcher.Constraint("Diameter", 0, Q("4 mm")),
    Sketcher.Constraint("DistanceX", -1, 1, 2, 3, Q("8 mm")),
    Sketcher.Constraint("DistanceY", 1, 3, 0, 3, Q("16 mm")),
    Sketcher.Constraint("DistanceY", 2, 3, -1, 1, Q("114.5 mm")),
    Sketcher.Constraint("DistanceX", 7, 3, -1, 1, Q("63.889 mm")),
    Sketcher.Constraint("DistanceY", -1, 1, 7, 3, Q("126.025 mm")),
    Sketcher.Constraint("DistanceX", 5, 3, 6, 3, Q("3.475 mm")),
    Sketcher.Constraint("DistanceY", 5, 3, 6, 3, Q("143.389 mm")),
    Sketcher.Constraint("DistanceX", 6, 3, 8, 3, Q("139.092 mm")),
    Sketcher.Constraint("DistanceY", 0, 3, -1, 1, Q("28.6777 mm")),
])
sketch6.setExpression("Constraints[15]", "Params.sketch6_diameter")
doc.recompute()
hole5 = body.newObject("PartDesign::Hole", "Hole004")
hole5.Profile = sketch6
hole5.ThreadType = "None"
hole5.setExpression("Diameter", "Params.hole5_diameter")
hole5.DepthType = "ThroughAll"

doc.recompute()
